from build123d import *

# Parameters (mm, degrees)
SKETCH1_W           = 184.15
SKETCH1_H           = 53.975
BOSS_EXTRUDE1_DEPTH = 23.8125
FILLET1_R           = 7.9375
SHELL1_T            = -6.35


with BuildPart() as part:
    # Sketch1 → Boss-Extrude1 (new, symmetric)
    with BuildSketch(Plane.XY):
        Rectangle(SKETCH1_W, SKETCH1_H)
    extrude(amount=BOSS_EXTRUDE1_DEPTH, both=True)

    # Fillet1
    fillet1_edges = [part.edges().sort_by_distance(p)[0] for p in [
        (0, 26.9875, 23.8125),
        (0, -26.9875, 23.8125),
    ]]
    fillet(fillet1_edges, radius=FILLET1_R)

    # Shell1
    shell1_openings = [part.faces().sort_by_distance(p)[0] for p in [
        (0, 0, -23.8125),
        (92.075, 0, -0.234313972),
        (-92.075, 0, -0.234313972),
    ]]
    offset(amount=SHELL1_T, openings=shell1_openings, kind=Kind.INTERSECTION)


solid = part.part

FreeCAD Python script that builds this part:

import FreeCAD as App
import Part
import Sketcher
Q = App.Units.Quantity


def edges_at(feature, points):
    """Names of the edges that pass closest to the given points."""
    edges = feature.Shape.Edges
    near = lambda p: min(range(len(edges)), key=lambda i: edges[i].distToShape(Part.Vertex(*p))[0])
    return sorted({f"Edge{near(p) + 1}" for p in points})


def faces_at(feature, points):
    """Names of the faces that lie closest to the given points."""
    faces = feature.Shape.Faces
    near = lambda p: min(range(len(faces)), key=lambda i: faces[i].distToShape(Part.Vertex(*p))[0])
    return sorted({f"Face{near(p) + 1}" for p in points})


def add_polygon(sketch, points):
    """Adds a closed chain of lines whose ends are joined by coincident constraints."""
    first, n = sketch.GeometryCount, len(points)
    for a, b in zip(points, points[1:] + points[:1]):
        sketch.addGeometry(Part.LineSegment(App.Vector(*a, 0), App.Vector(*b, 0)), False)
    for i in range(n):
        sketch.addConstraint(Sketcher.Constraint("Coincident", first + i, 2, first + (i + 1) % n, 1))

doc = App.newDocument("Part")
params = doc.addObject("Spreadsheet::Sheet", "Params")
for row, (alias, value) in enumerate([
    ("sketch1_width", "7.25 in"),
    ("sketch1_height", "2.125 in"),
    ("pad1_length", "1.875 in"),
    ("fillet_radius", "0.3125 in"),
    ("thickness_wall", "0.25 in"),
], start=1):
    params.set(f"A{row}", alias)
    params.set(f"B{row}", "=" + value)
    params.setAlias(f"B{row}", alias)

body = doc.addObject("PartDesign::Body", "Body")

# Sketch on XY plane
sketch1 = body.newObject("Sketcher::SketchObject", "Sketch")
sketch1.AttachmentSupport = (doc.getObject("XY_Plane"), [""])
sketch1.MapMode = "FlatFace"
add_polygon(sketch1, [(-92, 27), (-92, -27), (92, -27), (92, 27)])  # lines 0-3
sketch1.addConstraint(Sketcher.Constraint("Vertical", 0))
sketch1.addConstraint(Sketcher.Constraint("Horizontal", 1))
sketch1.addConstraint(Sketcher.Constraint("Vertical", 2))
sketch1.addConstraint(Sketcher.Constraint("Horizontal", 3))
sketch1.addConstraint(Sketcher.Constraint("Symmetric", 0, 2, 2, 2, -1, 1))
sketch1.addConstraint(Sketcher.Constraint("DistanceX", 1, 1, 1, 2, Q("7.25 in")))
sketch1.addConstraint(Sketcher.Constraint("DistanceY", 0, 2, 0, 1, Q("2.125 in")))
sketch1.setExpression("Constraints[9]", "Params.sketch1_width")
sketch1.setExpression("Constraints[10]", "Params.sketch1_height")
pad1 = body.newObject("PartDesign::Pad", "Pad")
pad1.Profile = sketch1
pad1.setExpression("Length", "Params.pad1_length")
pad1.Midplane = True
doc.recompute()

fillet = body.newObject("PartDesign::Fillet", "Fillet")
fillet.Base = (pad1, edges_at(pad1, [(0, 26.988, 23.812), (0, -26.988, 23.812)]))
fillet.setExpression("Radius", "Params.fillet_radius")
doc.recompute()

thickness = body.newObject("PartDesign::Thickness", "Thickness")
thickness.Base = (fillet, faces_at(fillet, [(0, 0, -23.812), (92.075, 0, 0), (-92.075, 0, 0)]))
thickness.setExpression("Value", "Params.thickness_wall")
thickness.Reversed = True
thickness.Join = "Intersection"

doc.recompute()
